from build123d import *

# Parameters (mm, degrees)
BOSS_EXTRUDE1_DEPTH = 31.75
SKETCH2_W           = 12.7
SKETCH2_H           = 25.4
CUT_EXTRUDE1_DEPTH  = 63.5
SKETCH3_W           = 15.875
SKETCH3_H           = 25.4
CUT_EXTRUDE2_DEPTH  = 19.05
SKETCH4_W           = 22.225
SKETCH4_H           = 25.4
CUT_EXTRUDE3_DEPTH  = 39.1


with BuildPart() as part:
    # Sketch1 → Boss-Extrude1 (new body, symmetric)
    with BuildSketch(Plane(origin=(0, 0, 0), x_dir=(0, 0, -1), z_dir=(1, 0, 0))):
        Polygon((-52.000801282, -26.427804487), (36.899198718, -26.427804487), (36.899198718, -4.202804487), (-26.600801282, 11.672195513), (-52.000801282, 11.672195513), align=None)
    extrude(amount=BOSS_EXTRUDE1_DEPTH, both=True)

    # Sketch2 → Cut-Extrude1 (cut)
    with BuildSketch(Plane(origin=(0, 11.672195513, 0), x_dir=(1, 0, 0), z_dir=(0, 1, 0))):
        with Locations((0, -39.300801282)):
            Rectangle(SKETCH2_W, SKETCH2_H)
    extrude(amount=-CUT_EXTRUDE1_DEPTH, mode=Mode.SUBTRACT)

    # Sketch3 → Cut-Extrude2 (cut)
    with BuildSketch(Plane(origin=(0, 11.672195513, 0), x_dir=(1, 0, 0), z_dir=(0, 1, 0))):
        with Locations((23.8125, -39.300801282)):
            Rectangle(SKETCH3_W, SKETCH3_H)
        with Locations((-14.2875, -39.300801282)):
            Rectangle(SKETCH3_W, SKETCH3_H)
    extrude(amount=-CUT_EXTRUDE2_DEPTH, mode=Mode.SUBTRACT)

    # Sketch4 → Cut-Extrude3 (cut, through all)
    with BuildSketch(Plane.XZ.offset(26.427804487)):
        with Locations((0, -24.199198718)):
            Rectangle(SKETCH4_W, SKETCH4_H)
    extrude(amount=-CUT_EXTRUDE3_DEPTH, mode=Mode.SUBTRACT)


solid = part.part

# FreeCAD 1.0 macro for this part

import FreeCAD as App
import Part
import Sketcher

V = App.Vector
Q = App.Units.Quantity

doc = App.newDocument("Part")
params = doc.addObject("Spreadsheet::Sheet", "Params")
for row, (alias, value) in enumerate([
    ("sketch1_height", "1 in"),
    ("sketch1_width", "1.5 in"),
    ("sketch1_height2", "3.5 in"),
    ("sketch1_width2", "0.875 in"),
    ("pad1_length", "2.5 in"),
    ("sketch2_height", "1 in"),
    ("sketch2_width", "0.5 in"),
    ("pocket1_length", "2.5 in"),
    ("sketch3_height", "1 in"),
    ("sketch3_width", "0.625 in"),
    ("pocket2_length", "0.75 in"),
    ("sketch4_height", "1 in"),
    ("sketch4_width", "0.875 in"),
], start=1):
    params.set(f"A{row}", alias)
    params.set(f"B{row}", "=" + value)
    params.setAlias(f"B{row}", alias)

body = doc.addObject("PartDesign::Body", "Body")

# Sketch on YZ plane
sketch1 = body.newObject("Sketcher::SketchObject", "Sketch")
sketch1.AttachmentSupport = (doc.getObject("YZ_Plane"), [""])
sketch1.MapMode = "FlatFace"
sketch1.addGeometry([
    Part.LineSegment(V(-26, 52, 0), V(-26, -37, 0)),  # 0
    Part.LineSegment(V(-26, -37, 0), V(-4, -37, 0)),  # 1
    Part.LineSegment(V(-4, -37, 0), V(12, 27, 0)),  # 2
    Part.LineSegment(V(12, 27, 0), V(12, 52, 0)),  # 3
    Part.LineSegment(V(12, 52, 0), V(-26, 52, 0)),  # 4
], False)
sketch1.addConstraint([
    Sketcher.Constraint("Coincident", 0, 2, 1, 1),
    Sketcher.Constraint("Coincident", 1, 2, 2, 1),
    Sketcher.Constraint("Coincident", 2, 2, 3, 1),
    Sketcher.Constraint("Coincident", 3, 2, 4, 1),
    Sketcher.Constraint("Coincident", 4, 2, 0, 1),
    Sketcher.Constraint("Vertical", 0),
    Sketcher.Constraint("Horizontal", 1),
    Sketcher.Constraint("Vertical", 3),
    Sketcher.Constraint("Horizontal", 4),
    Sketcher.Constraint("DistanceY", 3, 1, 3, 2, Q("1 in")),
    Sketcher.Constraint("DistanceX", 4, 2, 4, 1, Q("1.5 in")),
    Sketcher.Constraint("DistanceY", 0, 2, 0, 1, Q("3.5 in")),
    Sketcher.Constraint("DistanceX", 1, 1, 1, 2, Q("0.875 in")),
    Sketcher.Constraint("DistanceY", 0, 2, -1, 1, Q("36.899199 mm")),
    Sketcher.Constraint("DistanceX", 0, 2, -1, 1, Q("26.427804 mm")),
])
sketch1.setExpression("Constraints[9]", "Params.sketch1_height")
sketch1.setExpression("Constraints[10]", "Params.sketch1_width")
sketch1.setExpression("Constraints[11]", "Params.sketch1_height2")
sketch1.setExpression("Constraints[12]", "Params.sketch1_width2")
pad1 = body.newObject("PartDesign::Pad", "Pad")
pad1.Profile = sketch1
pad1.setExpression("Length", "Params.pad1_length")
pad1.Midplane = True

# Sketch on XZ plane
sketch2 = body.newObject("Sketcher::SketchObject", "Sketch001")
sketch2.AttachmentSupport = (doc.getObject("XZ_Plane"), [""])
sketch2.MapMode = "FlatFace"
sketch2.AttachmentOffset = App.Placement(V(0, 0, -11.672196), App.Rotation())
sketch2.addGeometry([
    Part.LineSegment(V(-6, 27, 0), V(-6, 52, 0)),
    Part.LineSegment(V(-6, 52, 0), V(6, 52, 0)),
    Part.LineSegment(V(6, 52, 0), V(6, 27, 0)),
    Part.LineSegment(V(6, 27, 0), V(-6, 27, 0)),
], False)
sketch2.addConstraint([
    Sketcher.Constraint("Coincident", 0, 2, 1, 1),
    Sketcher.Constraint("Coincident", 1, 2, 2, 1),
    Sketcher.Constraint("Coincident", 2, 2, 3, 1),
    Sketcher.Constraint("Coincident", 3, 2, 0, 1),
    Sketcher.Constraint("Vertical", 0),
    Sketcher.Constraint("Horizontal", 1),
    Sketcher.Constraint("Vertical", 2),
    Sketcher.Constraint("Horizontal", 3),
    Sketcher.Constraint("DistanceY", 0, 1, 0, 2, Q("1 in")),
    Sketcher.Constraint("DistanceX", 1, 1, 1, 2, Q("0.5 in")),
    Sketcher.Constraint("DistanceX", 0, 2, -1, 1, Q("0.25 in")),
    Sketcher.Constraint("DistanceY", -1, 1, 0, 2, Q("52.000801 mm")),
])
sketch2.setExpression("Constraints[8]", "Params.sketch2_height")
sketch2.setExpression("Constraints[9]", "Params.sketch2_width")
pocket1 = body.newObject("PartDesign::Pocket", "Pocket")
pocket1.Profile = sketch2
pocket1.setExpression("Length", "Params.pocket1_length")
pocket1.Reversed = True

# Sketch on XZ plane
sketch3 = body.newObject("Sketcher::SketchObject", "Sketch002")
sketch3.AttachmentSupport = (doc.getObject("XZ_Plane"), [""])
sketch3.MapMode = "FlatFace"
sketch3.AttachmentOffset = App.Placement(V(0, 0, -11.672196), App.Rotation())
sketch3.addGeometry([
    Part.LineSegment(V(16, 27, 0), V(16, 52, 0)),  # 0
    Part.LineSegment(V(16, 52, 0), V(32, 52, 0)),  # 1
    Part.LineSegment(V(32, 52, 0), V(32, 27, 0)),  # 2
    Part.LineSegment(V(32, 27, 0), V(16, 27, 0)),  # 3
    Part.LineSegment(V(-22, 27, 0), V(-22, 52, 0)),  # 4
    Part.LineSegment(V(-22, 52, 0), V(-6, 52, 0)),  # 5
    Part.LineSegment(V(-6, 52, 0), V(-6, 27, 0)),  # 6
    Part.LineSegment(V(-6, 27, 0), V(-22, 27, 0)),  # 7
], False)
sketch3.addConstraint([
    Sketcher.Constraint("Coincident", 0, 2, 1, 1),
    Sketcher.Constraint("Coincident", 1, 2, 2, 1),
    Sketcher.Constraint("Coincident", 2, 2, 3, 1),
    Sketcher.Constraint("Coincident", 3, 2, 0, 1),
    Sketcher.Constraint("Coincident", 4, 2, 5, 1),
    Sketcher.Constraint("Coincident", 5, 2, 6, 1),
    Sketcher.Constraint("Coincident", 6, 2, 7, 1),
    Sketcher.Constraint("Coincident", 7, 2, 4, 1),
    Sketcher.Constraint("Vertical", 0),
    Sketcher.Constraint("Horizontal", 1),
    Sketcher.Constraint("Vertical", 2),
    Sketcher.Constraint("Horizontal", 3),
    Sketcher.Constraint("Vertical", 4),
    Sketcher.Constraint("Horizontal", 5),
    Sketcher.Constraint("Vertical", 6),
    Sketcher.Constraint("Horizontal", 7),
    Sketcher.Constraint("Horizontal", 1, 2, 4, 2),
    Sketcher.Constraint("Horizontal", 3, 2, 6, 2),
    Sketcher.Constraint("Equal", 3, 5),
    Sketcher.Constraint("DistanceY", 0, 1, 0, 2, Q("1 in")),
    Sketcher.Constraint("DistanceX", 4, 2, 0, 2, Q("1.5 in")),
    Sketcher.Constraint("DistanceX", 1, 1, 1, 2, Q("0.625 in")),
    Sketcher.Constraint("DistanceX", -1, 1, 1, 2, Q("1.25 in")),
    Sketcher.Constraint("DistanceY", -1, 1, 0, 2, Q("52.000801 mm")),
])
sketch3.setExpression("Constraints[19]", "Params.sketch3_height")
sketch3.setExpression("Constraints[21]", "Params.sketch3_width")
pocket2 = body.newObject("PartDesign::Pocket", "Pocket001")
pocket2.Profile = sketch3
pocket2.setExpression("Length", "Params.pocket2_length")
pocket2.Reversed = True

# Sketch on XZ plane
sketch4 = body.newObject("Sketcher::SketchObject", "Sketch003")
sketch4.AttachmentSupport = (doc.getObject("XZ_Plane"), [""])
sketch4.MapMode = "FlatFace"
sketch4.AttachmentOffset = App.Placement(V(0, 0, 26.427804), App.Rotation())
sketch4.addGeometry([
    Part.LineSegment(V(-11, -11, 0), V(-11, -37, 0)),
    Part.LineSegment(V(-11, -37, 0), V(11, -37, 0)),
    Part.LineSegment(V(11, -37, 0), V(11, -11, 0)),
    Part.LineSegment(V(11, -11, 0), V(-11, -11, 0)),
], False)
sketch4.addConstraint([
    Sketcher.Constraint("Coincident", 0, 2, 1, 1),
    Sketcher.Constraint("Coincident", 1, 2, 2, 1),
    Sketcher.Constraint("Coincident", 2, 2, 3, 1),
    Sketcher.Constraint("Coincident", 3, 2, 0, 1),
    Sketcher.Constraint("Vertical", 0),
    Sketcher.Constraint("Horizontal", 1),
    Sketcher.Constraint("Vertical", 2),
    Sketcher.Constraint("Horizontal", 3),
    Sketcher.Constraint("DistanceY", 0, 2, 0, 1, Q("1 in")),
    Sketcher.Constraint("DistanceX", 1, 1, 1, 2, Q("0.875 in")),
    Sketcher.Constraint("DistanceX", 0, 2, -1, 1, Q("0.4375 in")),
    Sketcher.Constraint("DistanceY", 0, 2, -1, 1, Q("36.899199 mm")),
])
sketch4.setExpression("Constraints[8]", "Params.sketch4_height")
sketch4.setExpression("Constraints[9]", "Params.sketch4_width")
pocket3 = body.newObject("PartDesign::Pocket", "Pocket002")
pocket3.Profile = sketch4
pocket3.Type = "ThroughAll"

doc.recompute()
